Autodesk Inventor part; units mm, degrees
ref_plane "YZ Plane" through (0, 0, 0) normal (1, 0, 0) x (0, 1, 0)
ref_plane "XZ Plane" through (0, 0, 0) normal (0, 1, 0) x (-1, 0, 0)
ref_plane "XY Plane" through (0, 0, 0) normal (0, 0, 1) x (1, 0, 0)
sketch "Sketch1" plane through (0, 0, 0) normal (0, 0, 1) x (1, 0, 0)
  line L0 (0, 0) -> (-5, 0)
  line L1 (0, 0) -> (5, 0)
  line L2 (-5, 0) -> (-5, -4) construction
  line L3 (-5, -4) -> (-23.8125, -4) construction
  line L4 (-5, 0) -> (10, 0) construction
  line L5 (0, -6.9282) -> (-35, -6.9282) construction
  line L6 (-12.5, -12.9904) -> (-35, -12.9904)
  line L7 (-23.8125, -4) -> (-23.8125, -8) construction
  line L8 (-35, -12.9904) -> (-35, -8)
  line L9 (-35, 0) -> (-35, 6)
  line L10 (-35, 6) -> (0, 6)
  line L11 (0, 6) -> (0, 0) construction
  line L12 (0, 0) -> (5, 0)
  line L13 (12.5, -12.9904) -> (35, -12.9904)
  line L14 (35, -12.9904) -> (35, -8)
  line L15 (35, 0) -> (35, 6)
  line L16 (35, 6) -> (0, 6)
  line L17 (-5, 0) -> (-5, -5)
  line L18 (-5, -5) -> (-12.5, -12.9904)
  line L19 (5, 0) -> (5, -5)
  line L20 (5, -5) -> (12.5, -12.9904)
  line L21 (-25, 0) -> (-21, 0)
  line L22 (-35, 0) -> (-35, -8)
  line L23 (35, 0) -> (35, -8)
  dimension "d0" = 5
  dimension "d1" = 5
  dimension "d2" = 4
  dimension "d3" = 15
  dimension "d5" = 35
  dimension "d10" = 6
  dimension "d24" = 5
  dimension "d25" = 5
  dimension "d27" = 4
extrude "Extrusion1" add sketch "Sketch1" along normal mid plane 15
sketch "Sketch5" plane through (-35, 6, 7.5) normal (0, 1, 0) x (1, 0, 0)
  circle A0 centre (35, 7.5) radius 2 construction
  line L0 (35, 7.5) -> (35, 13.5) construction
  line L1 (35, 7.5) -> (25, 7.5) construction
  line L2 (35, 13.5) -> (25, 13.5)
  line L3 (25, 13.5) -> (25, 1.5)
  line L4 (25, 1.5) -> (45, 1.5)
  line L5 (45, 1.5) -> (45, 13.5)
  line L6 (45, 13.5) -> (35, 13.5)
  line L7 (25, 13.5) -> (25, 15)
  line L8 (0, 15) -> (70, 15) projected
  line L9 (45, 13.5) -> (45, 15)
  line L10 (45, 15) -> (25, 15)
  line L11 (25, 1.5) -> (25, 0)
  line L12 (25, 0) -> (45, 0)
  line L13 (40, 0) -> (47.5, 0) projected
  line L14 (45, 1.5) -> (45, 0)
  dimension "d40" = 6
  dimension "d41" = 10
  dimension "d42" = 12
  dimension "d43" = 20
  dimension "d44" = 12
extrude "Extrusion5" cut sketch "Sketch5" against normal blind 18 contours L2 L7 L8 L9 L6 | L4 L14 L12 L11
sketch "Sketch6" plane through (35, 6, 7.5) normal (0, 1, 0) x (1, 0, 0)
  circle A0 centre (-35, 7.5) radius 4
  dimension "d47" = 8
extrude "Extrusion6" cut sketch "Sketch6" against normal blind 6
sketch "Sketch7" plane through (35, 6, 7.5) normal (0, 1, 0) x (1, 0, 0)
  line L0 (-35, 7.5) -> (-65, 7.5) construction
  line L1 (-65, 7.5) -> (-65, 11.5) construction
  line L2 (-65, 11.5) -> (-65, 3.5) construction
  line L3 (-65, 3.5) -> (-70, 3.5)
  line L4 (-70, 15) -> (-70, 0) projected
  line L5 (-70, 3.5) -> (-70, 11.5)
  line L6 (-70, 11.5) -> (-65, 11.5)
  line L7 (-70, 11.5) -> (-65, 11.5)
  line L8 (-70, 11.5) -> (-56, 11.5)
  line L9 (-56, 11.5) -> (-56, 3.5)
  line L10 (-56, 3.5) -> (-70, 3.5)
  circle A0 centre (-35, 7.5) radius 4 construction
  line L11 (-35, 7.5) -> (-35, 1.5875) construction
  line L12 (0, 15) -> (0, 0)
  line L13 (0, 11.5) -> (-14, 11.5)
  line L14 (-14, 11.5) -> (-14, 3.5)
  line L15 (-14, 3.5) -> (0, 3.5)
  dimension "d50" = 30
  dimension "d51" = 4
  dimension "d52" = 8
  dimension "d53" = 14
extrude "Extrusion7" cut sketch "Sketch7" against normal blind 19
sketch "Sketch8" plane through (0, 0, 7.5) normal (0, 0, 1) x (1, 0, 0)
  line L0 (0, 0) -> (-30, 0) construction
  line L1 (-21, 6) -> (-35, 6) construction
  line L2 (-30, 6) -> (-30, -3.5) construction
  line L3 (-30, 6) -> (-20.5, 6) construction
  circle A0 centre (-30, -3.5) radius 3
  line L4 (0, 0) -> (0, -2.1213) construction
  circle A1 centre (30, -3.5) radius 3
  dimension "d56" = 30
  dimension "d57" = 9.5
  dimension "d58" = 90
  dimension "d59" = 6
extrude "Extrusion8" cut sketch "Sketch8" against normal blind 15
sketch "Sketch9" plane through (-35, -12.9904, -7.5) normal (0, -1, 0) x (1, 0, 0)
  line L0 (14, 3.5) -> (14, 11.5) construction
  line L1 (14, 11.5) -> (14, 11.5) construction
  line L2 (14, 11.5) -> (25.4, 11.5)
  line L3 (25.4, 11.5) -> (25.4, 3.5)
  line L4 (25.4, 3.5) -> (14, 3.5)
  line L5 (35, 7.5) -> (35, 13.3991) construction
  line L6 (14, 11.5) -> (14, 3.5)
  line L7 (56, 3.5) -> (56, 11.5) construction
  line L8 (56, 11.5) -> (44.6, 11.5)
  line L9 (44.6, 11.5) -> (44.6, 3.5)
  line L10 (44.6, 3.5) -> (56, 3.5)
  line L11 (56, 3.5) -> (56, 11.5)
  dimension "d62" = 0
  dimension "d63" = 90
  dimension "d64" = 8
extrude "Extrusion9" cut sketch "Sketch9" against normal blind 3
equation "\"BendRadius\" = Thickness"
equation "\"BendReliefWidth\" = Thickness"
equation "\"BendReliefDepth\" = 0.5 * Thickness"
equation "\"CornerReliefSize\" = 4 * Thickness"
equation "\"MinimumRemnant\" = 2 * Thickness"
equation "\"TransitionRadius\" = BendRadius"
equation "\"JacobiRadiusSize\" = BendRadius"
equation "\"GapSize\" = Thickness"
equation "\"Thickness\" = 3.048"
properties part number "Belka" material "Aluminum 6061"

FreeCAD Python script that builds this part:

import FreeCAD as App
import Part
import Sketcher

V = App.Vector


def add_polygon(sketch, points):
    """Adds a closed chain of lines whose ends are joined by coincident constraints."""
    first, n = sketch.GeometryCount, len(points)
    for a, b in zip(points, points[1:] + points[:1]):
        sketch.addGeometry(Part.LineSegment(App.Vector(*a, 0), App.Vector(*b, 0)), False)
    for i in range(n):
        sketch.addConstraint(Sketcher.Constraint("Coincident", first + i, 2, first + (i + 1) % n, 1))

doc = App.newDocument("Part")
params = doc.addObject("Spreadsheet::Sheet", "Params")
for row, (alias, value) in enumerate([
    ("sketch1_height", "5 mm"),
    ("sketch1_width", "22.5 mm"),
    ("pad1_length", "15 mm"),
    ("sketch2_width", "20 mm"),
    ("sketch2_height", "1.5 mm"),
    ("pocket1_length", "18 mm"),
    ("sketch3_diameter", "8 mm"),
    ("pocket2_length", "6 mm"),
    ("sketch4_width", "14 mm"),
    ("sketch4_height", "8 mm"),
    ("pocket3_length", "19 mm"),
    ("sketch5_diameter", "6 mm"),
    ("pocket4_length", "15 mm"),
    ("sketch6_height", "8 mm"),
    ("sketch6_width", "11.4 mm"),
    ("pocket5_length", "3 mm"),
], start=1):
    params.set(f"A{row}", alias)
    params.set(f"B{row}", "=" + value)
    params.setAlias(f"B{row}", alias)

body = doc.addObject("PartDesign::Body", "Body")

# Sketch on XY plane
sketch1 = doc.addObject("Sketcher::SketchObject", "Sketch")
body.addObject(sketch1)
sketch1.AttachmentSupport = (doc.XY_Plane, [""])
sketch1.MapMode = "FlatFace"
add_polygon(sketch1, [(-5, 0), (5, 0), (5, -5), (12.5, -12.9904), (35, -12.9904), (35, 6), (-35, 6), (-35, -12.9904), (-12.5, -12.9904), (-5, -5)])  # lines 0-9
sketch1.addConstraint([
    Sketcher.Constraint("Horizontal", 0),
    Sketcher.Constraint("Vertical", 1),
    Sketcher.Constraint("Horizontal", 3),
    Sketcher.Constraint("Vertical", 4),
    Sketcher.Constraint("Horizontal", 5),
    Sketcher.Constraint("Vertical", 6),
    Sketcher.Constraint("Horizontal", 7),
    Sketcher.Constraint("Vertical", 9),
    Sketcher.Constraint("Symmetric", 0, 2, 9, 2, -1, 1),
    Sketcher.Constraint("Symmetric", 3, 2, 6, 2, -2),
    Sketcher.Constraint("Horizontal", 1, 2, 8, 2),
    Sketcher.Constraint("Equal", 3, 7),
    Sketcher.Constraint("DistanceY", 1, 2, 1, 1, 5.0),
    Sketcher.Constraint("DistanceX", -1, 1, 0, 2, 5.0),
    Sketcher.Constraint("DistanceX", -1, 1, 3, 2, 35.0),
    Sketcher.Constraint("DistanceY", -1, 1, 4, 2, 6.0),
    Sketcher.Constraint("DistanceX", 3, 1, 3, 2, 22.5),
    Sketcher.Constraint("DistanceY", 4, 1, 4, 2, 18.9904),
])
sketch1.setExpression("Constraints[22]", "Params.sketch1_height")
sketch1.setExpression("Constraints[26]", "Params.sketch1_width")
pad1 = doc.addObject("PartDesign::Pad", "Pad")
body.addObject(pad1)
pad1.Profile = sketch1
pad1.setExpression("Length", "Params.pad1_length")
pad1.Midplane = True

# Sketch on XZ plane
sketch2 = doc.addObject("Sketcher::SketchObject", "Sketch001")
body.addObject(sketch2)
sketch2.AttachmentSupport = (doc.XZ_Plane, [""])
sketch2.MapMode = "FlatFace"
sketch2.AttachmentOffset = App.Placement(V(0, 0, -6), App.Rotation())
add_polygon(sketch2, [(-10, -6), (10, -6), (10, -7.5), (-10, -7.5)])  # lines 0-3
add_polygon(sketch2, [(10, 6), (-10, 6), (-10, 7.5), (10, 7.5)])  # lines 4-7
sketch2.addConstraint([
    Sketcher.Constraint("Horizontal", 0),
    Sketcher.Constraint("Vertical", 1),
    Sketcher.Constraint("Horizontal", 2),
    Sketcher.Constraint("Vertical", 3),
    Sketcher.Constraint("Horizontal", 4),
    Sketcher.Constraint("Vertical", 5),
    Sketcher.Constraint("Horizontal", 6),
    Sketcher.Constraint("Vertical", 7),
    Sketcher.Constraint("Symmetric", 0, 2, 4, 2, -1, 1),
    Sketcher.Constraint("Symmetric", 2, 2, 6, 2, -1, 1),
    Sketcher.Constraint("Vertical", 3, 2, 4, 2),
    Sketcher.Constraint("DistanceX", 0, 1, 0, 2, 20.0),
    Sketcher.Constraint("DistanceY", 0, 2, -1, 1, 6.0),
    Sketcher.Constraint("DistanceY", 1, 2, 1, 1, 1.5),
])
sketch2.setExpression("Constraints[19]", "Params.sketch2_width")
sketch2.setExpression("Constraints[21]", "Params.sketch2_height")
pocket1 = doc.addObject("PartDesign::Pocket", "Pocket")
body.addObject(pocket1)
pocket1.Profile = sketch2
pocket1.setExpression("Length", "Params.pocket1_length")
pocket1.Reversed = True

# Sketch on XZ plane
sketch3 = doc.addObject("Sketcher::SketchObject", "Sketch002")
body.addObject(sketch3)
sketch3.AttachmentSupport = (doc.XZ_Plane, [""])
sketch3.MapMode = "FlatFace"
sketch3.AttachmentOffset = App.Placement(V(0, 0, -6), App.Rotation())
sketch3.addGeometry(Part.Circle(V(0, 0, 0), V(0, 0, 1), 4), False)
sketch3.addConstraint([
    Sketcher.Constraint("Coincident", 0, 3, -1, 1),
    Sketcher.Constraint("Diameter", 0, 8.0),
])
sketch3.setExpression("Constraints[1]", "Params.sketch3_diameter")
pocket2 = doc.addObject("PartDesign::Pocket", "Pocket001")
body.addObject(pocket2)
pocket2.Profile = sketch3
pocket2.setExpression("Length", "Params.pocket2_length")
pocket2.Reversed = True

# Sketch on XZ plane
sketch4 = doc.addObject("Sketcher::SketchObject", "Sketch003")
body.addObject(sketch4)
sketch4.AttachmentSupport = (doc.XZ_Plane, [""])
sketch4.MapMode = "FlatFace"
sketch4.AttachmentOffset = App.Placement(V(0, 0, -6), App.Rotation())
add_polygon(sketch4, [(-35, 4), (-21, 4), (-21, -4), (-35, -4)])  # lines 0-3
add_polygon(sketch4, [(35, 4), (35, -4), (21, -4), (21, 4)])  # lines 4-7
sketch4.addConstraint([
    Sketcher.Constraint("Horizontal", 0),
    Sketcher.Constraint("Vertical", 1),
    Sketcher.Constraint("Horizontal", 2),
    Sketcher.Constraint("Vertical", 3),
    Sketcher.Constraint("Vertical", 4),
    Sketcher.Constraint("Horizontal", 5),
    Sketcher.Constraint("Vertical", 6),
    Sketcher.Constraint("Horizontal", 7),
    Sketcher.Constraint("Symmetric", 3, 2, 4, 2, -1, 1),
    Sketcher.Constraint("Symmetric", 1, 2, 6, 2, -1, 1),
    Sketcher.Constraint("Horizontal", 2, 2, 4, 2),
    Sketcher.Constraint("DistanceX", 0, 1, 0, 2, 14.0),
    Sketcher.Constraint("DistanceY", 1, 2, 1, 1, 8.0),
    Sketcher.Constraint("DistanceX", 0, 2, -1, 1, 21.0),
])
sketch4.setExpression("Constraints[19]", "Params.sketch4_width")
sketch4.setExpression("Constraints[20]", "Params.sketch4_height")
pocket3 = doc.addObject("PartDesign::Pocket", "Pocket002")
body.addObject(pocket3)
pocket3.Profile = sketch4
pocket3.setExpression("Length", "Params.pocket3_length")
pocket3.Reversed = True

# Sketch on XY plane
sketch5 = doc.addObject("Sketcher::SketchObject", "Sketch004")
body.addObject(sketch5)
sketch5.AttachmentSupport = (doc.XY_Plane, [""])
sketch5.MapMode = "FlatFace"
sketch5.AttachmentOffset = App.Placement(V(0, 0, 7.5), App.Rotation())
sketch5.addGeometry([
    Part.Circle(V(-30, -3.5, 0), V(0, 0, 1), 3),
    Part.Circle(V(30, -3.5, 0), V(0, 0, 1), 3),
], False)
sketch5.addConstraint([
    Sketcher.Constraint("Equal", 0, 1),
    Sketcher.Constraint("Symmetric", 0, 3, 1, 3, -2),
    Sketcher.Constraint("Diameter", 0, 6.0),
    Sketcher.Constraint("DistanceX", 0, 3, -1, 1, 30.0),
    Sketcher.Constraint("DistanceY", 0, 3, -1, 1, 3.5),
])
sketch5.setExpression("Constraints[2]", "Params.sketch5_diameter")
pocket4 = doc.addObject("PartDesign::Pocket", "Pocket003")
body.addObject(pocket4)
pocket4.Profile = sketch5
pocket4.setExpression("Length", "Params.pocket4_length")

# Sketch on XZ plane
sketch6 = doc.addObject("Sketcher::SketchObject", "Sketch005")
body.addObject(sketch6)
sketch6.AttachmentSupport = (doc.XZ_Plane, [""])
sketch6.MapMode = "FlatFace"
sketch6.AttachmentOffset = App.Placement(V(0, 0, 12.9904), App.Rotation())
add_polygon(sketch6, [(-9.6, 4), (-21, 4), (-21, -4), (-9.6, -4)])  # lines 0-3
add_polygon(sketch6, [(21, -4), (21, 4), (9.6, 4), (9.6, -4)])  # lines 4-7
sketch6.addConstraint([
    Sketcher.Constraint("Horizontal", 0),
    Sketcher.Constraint("Vertical", 1),
    Sketcher.Constraint("Horizontal", 2),
    Sketcher.Constraint("Vertical", 3),
    Sketcher.Constraint("Vertical", 4),
    Sketcher.Constraint("Horizontal", 5),
    Sketcher.Constraint("Vertical", 6),
    Sketcher.Constraint("Horizontal", 7),
    Sketcher.Constraint("Symmetric", 1, 2, 4, 2, -1, 1),
    Sketcher.Constraint("Symmetric", 3, 2, 6, 2, -1, 1),
    Sketcher.Constraint("Horizontal", 3, 2, 4, 2),
    Sketcher.Constraint("DistanceY", 1, 2, 1, 1, 8.0),
    Sketcher.Constraint("DistanceX", 0, 2, 0, 1, 11.4),
    Sketcher.Constraint("DistanceX", 0, 2, -1, 1, 21.0),
])
sketch6.setExpression("Constraints[19]", "Params.sketch6_height")
sketch6.setExpression("Constraints[20]", "Params.sketch6_width")
pocket5 = doc.addObject("PartDesign::Pocket", "Pocket004")
body.addObject(pocket5)
pocket5.Profile = sketch6
pocket5.setExpression("Length", "Params.pocket5_length")

doc.recompute()
